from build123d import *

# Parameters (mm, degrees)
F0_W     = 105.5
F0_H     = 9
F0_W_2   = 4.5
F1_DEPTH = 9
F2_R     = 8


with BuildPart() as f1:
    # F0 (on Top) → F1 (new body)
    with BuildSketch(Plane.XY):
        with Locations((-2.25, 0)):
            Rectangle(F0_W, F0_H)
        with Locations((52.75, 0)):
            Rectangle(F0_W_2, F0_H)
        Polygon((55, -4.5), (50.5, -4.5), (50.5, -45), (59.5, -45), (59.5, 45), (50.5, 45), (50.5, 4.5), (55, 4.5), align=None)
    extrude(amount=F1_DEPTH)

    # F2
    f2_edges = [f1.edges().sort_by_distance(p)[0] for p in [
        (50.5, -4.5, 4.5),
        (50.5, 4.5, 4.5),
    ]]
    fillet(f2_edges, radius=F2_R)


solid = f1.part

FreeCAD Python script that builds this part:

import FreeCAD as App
import Part
import Sketcher

V = App.Vector
Q = App.Units.Quantity


def edges_at(feature, points):
    """Names of the edges that pass closest to the given points."""
    edges = feature.Shape.Edges
    near = lambda p: min(range(len(edges)), key=lambda i: edges[i].distToShape(Part.Vertex(*p))[0])
    return sorted({f"Edge{near(p) + 1}" for p in points})


def add_polygon(sketch, points):
    """Adds a closed chain of lines whose ends are joined by coincident constraints."""
    first, n = sketch.GeometryCount, len(points)
    for a, b in zip(points, points[1:] + points[:1]):
        sketch.addGeometry(Part.LineSegment(App.Vector(*a, 0), App.Vector(*b, 0)), False)
    for i in range(n):
        sketch.addConstraint(Sketcher.Constraint("Coincident", first + i, 2, first + (i + 1) % n, 1))

doc = App.newDocument("Part")
body = doc.addObject("PartDesign::Body", "Body")

sketch1 = body.newObject("Sketcher::SketchObject", "Sketch")
sketch1.AttachmentSupport = (doc.getObject("XY_Plane"), [""])
sketch1.MapMode = "FlatFace"
add_polygon(sketch1, [(-55, 4.5), (-55, -4.5), (50.5, -4.5), (50.5, -45), (59.5, -45), (59.5, 45), (50.5, 45), (50.5, 4.5)])
sketch1.addConstraint(Sketcher.Constraint("Vertical", 0))
sketch1.addConstraint(Sketcher.Constraint("Horizontal", 1))
sketch1.addConstraint(Sketcher.Constraint("Vertical", 2))
sketch1.addConstraint(Sketcher.Constraint("Horizontal", 3))
sketch1.addConstraint(Sketcher.Constraint("Vertical", 4))
sketch1.addConstraint(Sketcher.Constraint("Horizontal", 5))
sketch1.addConstraint(Sketcher.Constraint("Vertical", 6))
sketch1.addConstraint(Sketcher.Constraint("Horizontal", 7))
sketch1.addConstraint(Sketcher.Constraint("Symmetric", 2, 2, 5, 2, -1))
sketch1.addConstraint(Sketcher.Constraint("Equal", 5, 0))
sketch1.addConstraint(Sketcher.Constraint("Equal", 2, 6))
sketch1.addConstraint(Sketcher.Constraint("DistanceX", 3, 1, 3, 2, Q("9 mm")))
sketch1.addConstraint(Sketcher.Constraint("DistanceY", 4, 1, 4, 2, Q("90 mm")))
sketch1.addConstraint(Sketcher.Constraint("DistanceX", 1, 1, 1, 2, Q("105.5 mm")))
sketch1.addConstraint(Sketcher.Constraint("DistanceX", 0, 2, -1, 1, Q("55 mm")))
pad1 = body.newObject("PartDesign::Pad", "Pad")
pad1.Profile = sketch1
pad1.Length = 9
doc.recompute()

fillet = body.newObject("PartDesign::Fillet", "Fillet")
fillet.Base = (pad1, edges_at(pad1, [(50.5, -4.5, 4.5), (50.5, 4.5, 4.5)]))
fillet.Radius = 8

doc.recompute()
